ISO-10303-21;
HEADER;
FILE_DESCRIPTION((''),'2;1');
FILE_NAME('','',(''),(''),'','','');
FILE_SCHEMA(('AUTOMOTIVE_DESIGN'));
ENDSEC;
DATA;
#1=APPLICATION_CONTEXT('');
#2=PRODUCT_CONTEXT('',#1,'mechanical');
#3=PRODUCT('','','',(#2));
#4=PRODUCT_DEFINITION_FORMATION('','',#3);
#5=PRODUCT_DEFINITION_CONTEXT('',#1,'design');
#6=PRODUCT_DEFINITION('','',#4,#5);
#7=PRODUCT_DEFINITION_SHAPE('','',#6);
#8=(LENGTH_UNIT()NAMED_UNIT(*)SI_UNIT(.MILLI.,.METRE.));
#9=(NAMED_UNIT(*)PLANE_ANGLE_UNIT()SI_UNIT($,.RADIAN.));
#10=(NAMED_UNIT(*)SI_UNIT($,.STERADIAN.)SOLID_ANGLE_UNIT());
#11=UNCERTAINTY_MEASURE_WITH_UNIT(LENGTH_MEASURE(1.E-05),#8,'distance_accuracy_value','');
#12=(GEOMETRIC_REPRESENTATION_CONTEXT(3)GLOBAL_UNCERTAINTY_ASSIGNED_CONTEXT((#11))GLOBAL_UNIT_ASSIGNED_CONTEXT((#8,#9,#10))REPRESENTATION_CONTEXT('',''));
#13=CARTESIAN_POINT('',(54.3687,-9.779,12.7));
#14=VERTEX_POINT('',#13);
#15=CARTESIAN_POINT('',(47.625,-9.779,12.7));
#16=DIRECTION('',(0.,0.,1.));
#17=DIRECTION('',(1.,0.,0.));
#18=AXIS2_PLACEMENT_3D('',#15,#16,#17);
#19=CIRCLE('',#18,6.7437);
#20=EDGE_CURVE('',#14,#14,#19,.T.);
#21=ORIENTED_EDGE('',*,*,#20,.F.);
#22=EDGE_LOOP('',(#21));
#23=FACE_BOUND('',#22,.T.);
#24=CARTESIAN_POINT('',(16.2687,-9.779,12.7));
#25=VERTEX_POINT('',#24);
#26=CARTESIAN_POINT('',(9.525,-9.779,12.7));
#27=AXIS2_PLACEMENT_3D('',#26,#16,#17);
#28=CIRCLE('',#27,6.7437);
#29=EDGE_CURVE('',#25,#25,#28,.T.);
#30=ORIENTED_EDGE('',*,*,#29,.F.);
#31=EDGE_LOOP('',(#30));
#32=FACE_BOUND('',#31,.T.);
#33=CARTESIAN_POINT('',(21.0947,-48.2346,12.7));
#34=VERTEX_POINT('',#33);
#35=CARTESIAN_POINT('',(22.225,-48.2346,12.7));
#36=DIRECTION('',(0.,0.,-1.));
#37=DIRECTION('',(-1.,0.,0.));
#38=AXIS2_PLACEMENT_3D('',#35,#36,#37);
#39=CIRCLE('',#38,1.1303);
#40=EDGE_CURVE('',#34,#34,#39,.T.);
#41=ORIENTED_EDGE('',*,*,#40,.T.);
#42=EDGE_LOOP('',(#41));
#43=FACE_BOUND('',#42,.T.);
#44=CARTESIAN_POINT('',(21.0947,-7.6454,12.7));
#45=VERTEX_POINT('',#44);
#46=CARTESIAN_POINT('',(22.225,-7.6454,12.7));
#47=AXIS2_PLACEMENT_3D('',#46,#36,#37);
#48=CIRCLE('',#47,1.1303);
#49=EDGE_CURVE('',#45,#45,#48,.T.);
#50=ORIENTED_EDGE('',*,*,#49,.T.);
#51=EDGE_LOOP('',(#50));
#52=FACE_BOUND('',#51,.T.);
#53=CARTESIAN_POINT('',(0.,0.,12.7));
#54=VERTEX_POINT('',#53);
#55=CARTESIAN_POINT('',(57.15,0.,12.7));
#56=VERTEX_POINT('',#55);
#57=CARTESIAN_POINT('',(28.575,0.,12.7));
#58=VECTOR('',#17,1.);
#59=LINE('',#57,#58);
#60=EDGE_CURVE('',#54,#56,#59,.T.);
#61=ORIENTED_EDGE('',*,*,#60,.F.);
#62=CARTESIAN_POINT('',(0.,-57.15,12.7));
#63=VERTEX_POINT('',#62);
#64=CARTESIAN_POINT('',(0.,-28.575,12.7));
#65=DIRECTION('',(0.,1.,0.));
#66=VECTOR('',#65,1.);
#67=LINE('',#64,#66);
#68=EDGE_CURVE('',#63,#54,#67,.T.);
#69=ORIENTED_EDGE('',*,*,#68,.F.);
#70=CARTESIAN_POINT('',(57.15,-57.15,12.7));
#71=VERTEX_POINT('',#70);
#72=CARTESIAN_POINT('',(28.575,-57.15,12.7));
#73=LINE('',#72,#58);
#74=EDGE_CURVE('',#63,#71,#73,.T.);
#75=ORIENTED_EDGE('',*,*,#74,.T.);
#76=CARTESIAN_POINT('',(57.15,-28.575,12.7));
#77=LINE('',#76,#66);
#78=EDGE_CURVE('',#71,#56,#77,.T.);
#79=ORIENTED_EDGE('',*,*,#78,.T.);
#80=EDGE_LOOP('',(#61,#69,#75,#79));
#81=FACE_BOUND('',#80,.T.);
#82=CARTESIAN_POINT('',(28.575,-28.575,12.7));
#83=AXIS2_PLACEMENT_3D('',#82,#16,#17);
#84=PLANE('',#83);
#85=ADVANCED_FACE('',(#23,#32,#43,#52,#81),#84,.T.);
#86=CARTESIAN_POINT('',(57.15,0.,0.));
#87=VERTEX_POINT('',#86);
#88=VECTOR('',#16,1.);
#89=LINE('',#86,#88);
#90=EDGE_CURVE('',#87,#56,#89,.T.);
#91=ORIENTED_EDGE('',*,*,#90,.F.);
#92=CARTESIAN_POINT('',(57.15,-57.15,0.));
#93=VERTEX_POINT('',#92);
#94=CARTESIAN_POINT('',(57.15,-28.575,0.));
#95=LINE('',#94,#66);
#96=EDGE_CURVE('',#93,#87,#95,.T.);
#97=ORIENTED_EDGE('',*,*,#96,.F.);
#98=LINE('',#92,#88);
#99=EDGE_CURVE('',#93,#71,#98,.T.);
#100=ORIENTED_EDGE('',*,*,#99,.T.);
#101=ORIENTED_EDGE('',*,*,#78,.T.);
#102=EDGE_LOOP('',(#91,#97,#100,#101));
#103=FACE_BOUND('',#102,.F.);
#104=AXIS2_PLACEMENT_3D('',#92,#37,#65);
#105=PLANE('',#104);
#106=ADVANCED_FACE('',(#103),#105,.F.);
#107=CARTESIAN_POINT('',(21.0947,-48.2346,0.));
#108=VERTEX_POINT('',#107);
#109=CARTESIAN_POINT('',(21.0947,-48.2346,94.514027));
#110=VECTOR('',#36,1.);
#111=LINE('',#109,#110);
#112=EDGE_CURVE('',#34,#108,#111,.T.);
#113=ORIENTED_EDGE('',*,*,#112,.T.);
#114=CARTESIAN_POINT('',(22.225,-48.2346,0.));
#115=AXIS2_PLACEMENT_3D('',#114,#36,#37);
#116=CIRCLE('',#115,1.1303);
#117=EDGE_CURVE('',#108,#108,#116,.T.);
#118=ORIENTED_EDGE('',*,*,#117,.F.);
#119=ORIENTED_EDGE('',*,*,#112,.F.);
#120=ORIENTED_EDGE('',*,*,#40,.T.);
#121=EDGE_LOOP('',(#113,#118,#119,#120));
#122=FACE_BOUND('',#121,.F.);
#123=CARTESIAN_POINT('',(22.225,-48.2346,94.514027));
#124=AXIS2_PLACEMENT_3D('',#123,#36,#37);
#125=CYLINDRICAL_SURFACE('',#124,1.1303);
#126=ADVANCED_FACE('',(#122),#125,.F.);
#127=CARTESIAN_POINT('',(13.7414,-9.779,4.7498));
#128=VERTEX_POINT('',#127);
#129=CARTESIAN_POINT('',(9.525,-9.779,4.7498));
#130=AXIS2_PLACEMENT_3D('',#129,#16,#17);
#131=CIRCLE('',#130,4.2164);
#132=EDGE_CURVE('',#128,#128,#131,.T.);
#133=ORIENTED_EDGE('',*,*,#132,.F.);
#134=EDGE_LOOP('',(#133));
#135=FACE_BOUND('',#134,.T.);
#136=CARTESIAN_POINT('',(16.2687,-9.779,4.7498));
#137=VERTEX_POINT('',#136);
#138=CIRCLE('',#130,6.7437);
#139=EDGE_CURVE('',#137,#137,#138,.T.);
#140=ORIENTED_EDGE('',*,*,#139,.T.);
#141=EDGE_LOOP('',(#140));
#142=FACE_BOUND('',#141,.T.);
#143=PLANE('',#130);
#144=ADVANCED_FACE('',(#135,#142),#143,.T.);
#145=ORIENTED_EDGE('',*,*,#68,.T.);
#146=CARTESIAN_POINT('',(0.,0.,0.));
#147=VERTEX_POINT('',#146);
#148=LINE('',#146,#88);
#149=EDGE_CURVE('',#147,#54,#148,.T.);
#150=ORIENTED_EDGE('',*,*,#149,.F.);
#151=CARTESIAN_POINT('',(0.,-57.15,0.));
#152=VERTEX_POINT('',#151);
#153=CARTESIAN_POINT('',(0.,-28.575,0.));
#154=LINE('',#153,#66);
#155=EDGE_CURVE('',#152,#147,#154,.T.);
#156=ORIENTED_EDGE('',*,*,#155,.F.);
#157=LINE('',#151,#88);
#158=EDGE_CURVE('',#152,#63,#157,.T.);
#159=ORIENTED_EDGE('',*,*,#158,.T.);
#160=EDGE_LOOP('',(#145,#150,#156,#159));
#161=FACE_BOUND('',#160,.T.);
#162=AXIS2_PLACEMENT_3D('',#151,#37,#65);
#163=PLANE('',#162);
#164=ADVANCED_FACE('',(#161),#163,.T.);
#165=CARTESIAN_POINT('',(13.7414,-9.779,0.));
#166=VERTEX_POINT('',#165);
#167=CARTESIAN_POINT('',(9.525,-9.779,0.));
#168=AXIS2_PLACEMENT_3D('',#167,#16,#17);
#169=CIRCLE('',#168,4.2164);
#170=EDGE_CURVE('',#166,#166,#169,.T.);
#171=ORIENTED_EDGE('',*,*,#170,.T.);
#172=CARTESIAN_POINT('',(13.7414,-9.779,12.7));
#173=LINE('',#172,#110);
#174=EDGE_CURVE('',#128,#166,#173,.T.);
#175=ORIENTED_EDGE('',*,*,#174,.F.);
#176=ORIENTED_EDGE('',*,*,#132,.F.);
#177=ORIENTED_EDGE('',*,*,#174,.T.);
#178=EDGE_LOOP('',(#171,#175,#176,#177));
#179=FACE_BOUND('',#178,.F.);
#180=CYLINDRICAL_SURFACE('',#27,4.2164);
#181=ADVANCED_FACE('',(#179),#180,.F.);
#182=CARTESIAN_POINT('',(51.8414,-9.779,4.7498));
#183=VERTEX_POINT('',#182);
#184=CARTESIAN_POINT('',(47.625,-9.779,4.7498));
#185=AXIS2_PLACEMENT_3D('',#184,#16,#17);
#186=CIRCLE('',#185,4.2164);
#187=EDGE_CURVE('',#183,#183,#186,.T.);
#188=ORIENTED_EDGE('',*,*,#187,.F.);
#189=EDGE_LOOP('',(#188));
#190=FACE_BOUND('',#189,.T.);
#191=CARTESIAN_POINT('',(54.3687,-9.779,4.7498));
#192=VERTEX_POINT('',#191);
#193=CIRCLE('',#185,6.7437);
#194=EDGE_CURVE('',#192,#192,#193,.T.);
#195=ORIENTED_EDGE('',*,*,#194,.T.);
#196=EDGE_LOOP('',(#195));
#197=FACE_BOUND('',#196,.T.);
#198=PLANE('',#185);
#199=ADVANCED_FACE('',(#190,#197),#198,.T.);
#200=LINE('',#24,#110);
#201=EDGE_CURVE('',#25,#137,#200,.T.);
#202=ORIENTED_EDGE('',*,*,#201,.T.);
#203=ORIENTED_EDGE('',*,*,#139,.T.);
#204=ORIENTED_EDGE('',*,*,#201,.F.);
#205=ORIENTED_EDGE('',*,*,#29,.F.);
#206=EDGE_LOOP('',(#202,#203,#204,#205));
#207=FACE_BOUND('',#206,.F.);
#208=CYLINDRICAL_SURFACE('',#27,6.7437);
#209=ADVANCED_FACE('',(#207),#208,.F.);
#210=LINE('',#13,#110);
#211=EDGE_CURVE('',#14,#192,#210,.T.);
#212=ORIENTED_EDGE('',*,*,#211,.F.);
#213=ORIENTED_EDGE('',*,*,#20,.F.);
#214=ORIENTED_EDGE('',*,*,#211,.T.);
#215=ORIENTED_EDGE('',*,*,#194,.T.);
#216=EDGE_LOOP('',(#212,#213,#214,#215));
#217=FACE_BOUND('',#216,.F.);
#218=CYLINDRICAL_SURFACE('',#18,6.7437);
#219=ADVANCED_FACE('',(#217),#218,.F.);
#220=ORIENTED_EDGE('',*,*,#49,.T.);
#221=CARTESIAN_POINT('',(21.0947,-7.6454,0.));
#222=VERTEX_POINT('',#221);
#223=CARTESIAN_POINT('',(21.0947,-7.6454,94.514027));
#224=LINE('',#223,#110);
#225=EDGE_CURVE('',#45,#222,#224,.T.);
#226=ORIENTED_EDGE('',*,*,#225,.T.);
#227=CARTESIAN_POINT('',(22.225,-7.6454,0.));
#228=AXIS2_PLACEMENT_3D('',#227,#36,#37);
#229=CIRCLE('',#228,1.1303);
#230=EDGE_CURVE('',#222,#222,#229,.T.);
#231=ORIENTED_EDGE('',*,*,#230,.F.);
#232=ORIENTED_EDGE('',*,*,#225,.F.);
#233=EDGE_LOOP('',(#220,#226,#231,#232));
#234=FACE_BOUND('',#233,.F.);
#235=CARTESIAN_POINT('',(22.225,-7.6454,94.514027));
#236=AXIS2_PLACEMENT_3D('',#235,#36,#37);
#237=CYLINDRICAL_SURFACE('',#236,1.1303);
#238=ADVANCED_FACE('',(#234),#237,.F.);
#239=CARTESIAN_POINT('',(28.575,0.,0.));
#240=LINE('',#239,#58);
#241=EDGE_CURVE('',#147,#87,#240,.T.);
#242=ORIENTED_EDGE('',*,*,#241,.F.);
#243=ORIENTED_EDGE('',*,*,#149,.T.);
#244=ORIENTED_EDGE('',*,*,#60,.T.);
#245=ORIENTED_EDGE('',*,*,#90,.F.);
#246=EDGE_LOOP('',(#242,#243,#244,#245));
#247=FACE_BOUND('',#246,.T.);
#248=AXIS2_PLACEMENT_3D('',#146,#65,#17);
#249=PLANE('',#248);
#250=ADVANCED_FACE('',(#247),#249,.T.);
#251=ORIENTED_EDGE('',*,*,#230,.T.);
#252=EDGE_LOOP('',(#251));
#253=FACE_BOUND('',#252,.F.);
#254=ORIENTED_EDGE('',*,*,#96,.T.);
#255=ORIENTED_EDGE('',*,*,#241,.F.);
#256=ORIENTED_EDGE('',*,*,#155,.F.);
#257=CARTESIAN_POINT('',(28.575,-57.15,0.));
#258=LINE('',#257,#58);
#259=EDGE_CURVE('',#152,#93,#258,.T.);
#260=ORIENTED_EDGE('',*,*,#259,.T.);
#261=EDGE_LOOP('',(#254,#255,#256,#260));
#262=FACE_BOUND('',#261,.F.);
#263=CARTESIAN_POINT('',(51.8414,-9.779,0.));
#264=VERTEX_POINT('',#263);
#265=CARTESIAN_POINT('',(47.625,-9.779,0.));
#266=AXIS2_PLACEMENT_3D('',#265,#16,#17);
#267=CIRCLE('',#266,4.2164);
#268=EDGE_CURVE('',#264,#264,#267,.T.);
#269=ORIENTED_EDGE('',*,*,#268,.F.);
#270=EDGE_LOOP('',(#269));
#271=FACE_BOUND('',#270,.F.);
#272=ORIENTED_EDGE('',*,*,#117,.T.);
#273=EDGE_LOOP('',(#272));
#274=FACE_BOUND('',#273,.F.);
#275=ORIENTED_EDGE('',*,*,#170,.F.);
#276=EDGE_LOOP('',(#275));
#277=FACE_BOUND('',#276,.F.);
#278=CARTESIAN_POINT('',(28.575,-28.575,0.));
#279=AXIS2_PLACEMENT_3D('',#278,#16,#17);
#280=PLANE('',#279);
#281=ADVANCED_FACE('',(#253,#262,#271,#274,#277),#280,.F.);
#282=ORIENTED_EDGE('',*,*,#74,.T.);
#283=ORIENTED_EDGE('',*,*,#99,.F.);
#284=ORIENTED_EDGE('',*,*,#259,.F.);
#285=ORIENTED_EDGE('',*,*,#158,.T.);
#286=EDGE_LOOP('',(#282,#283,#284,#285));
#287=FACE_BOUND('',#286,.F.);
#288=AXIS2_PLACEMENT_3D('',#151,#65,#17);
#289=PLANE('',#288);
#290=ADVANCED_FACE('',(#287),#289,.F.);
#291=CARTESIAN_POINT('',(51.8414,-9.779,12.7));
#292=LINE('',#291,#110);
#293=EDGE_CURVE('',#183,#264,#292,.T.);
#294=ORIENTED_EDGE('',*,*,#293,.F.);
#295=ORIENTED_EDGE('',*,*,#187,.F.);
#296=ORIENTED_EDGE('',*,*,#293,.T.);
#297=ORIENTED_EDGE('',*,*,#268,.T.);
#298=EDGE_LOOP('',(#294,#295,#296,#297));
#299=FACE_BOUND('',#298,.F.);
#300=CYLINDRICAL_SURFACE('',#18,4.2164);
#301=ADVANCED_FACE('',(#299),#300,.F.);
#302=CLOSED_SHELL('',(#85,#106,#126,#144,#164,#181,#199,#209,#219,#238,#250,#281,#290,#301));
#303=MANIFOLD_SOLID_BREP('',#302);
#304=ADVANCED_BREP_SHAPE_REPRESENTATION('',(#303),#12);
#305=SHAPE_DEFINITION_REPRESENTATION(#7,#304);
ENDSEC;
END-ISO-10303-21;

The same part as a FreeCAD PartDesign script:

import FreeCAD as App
import Part
import Sketcher
Q = App.Units.Quantity

doc = App.newDocument("Part")
body = doc.addObject("PartDesign::Body", "Body")

# Sketch on XY plane
sketch1 = doc.addObject("Sketcher::SketchObject", "Sketch")
body.addObject(sketch1)
sketch1.AttachmentSupport = (doc.XY_Plane, [""])
sketch1.MapMode = "FlatFace"
sketch1.addGeometry(Part.LineSegment(App.Vector(0, 0, 0), App.Vector(0, -57, 0)), False)
sketch1.addGeometry(Part.LineSegment(App.Vector(0, -57, 0), App.Vector(57, -57, 0)), False)
sketch1.addGeometry(Part.LineSegment(App.Vector(57, -57, 0), App.Vector(57, 0, 0)), False)
sketch1.addGeometry(Part.LineSegment(App.Vector(57, 0, 0), App.Vector(0, 0, 0)), False)
sketch1.addConstraint(Sketcher.Constraint("Coincident", 0, 2, 1, 1))
sketch1.addConstraint(Sketcher.Constraint("Coincident", 1, 2, 2, 1))
sketch1.addConstraint(Sketcher.Constraint("Coincident", 2, 2, 3, 1))
sketch1.addConstraint(Sketcher.Constraint("Coincident", 3, 2, 0, 1))
sketch1.addConstraint(Sketcher.Constraint("Vertical", 0))
sketch1.addConstraint(Sketcher.Constraint("Horizontal", 1))
sketch1.addConstraint(Sketcher.Constraint("Vertical", 2))
sketch1.addConstraint(Sketcher.Constraint("Horizontal", 3))
sketch1.addConstraint(Sketcher.Constraint("Coincident", 3, 2, -1, 1))
sketch1.addConstraint(Sketcher.Constraint("Equal", 3, 0))
sketch1.addConstraint(Sketcher.Constraint("DistanceX", 1, 1, 1, 2, Q("2.25 in")))
pad1 = doc.addObject("PartDesign::Pad", "Pad")
body.addObject(pad1)
pad1.Profile = sketch1
pad1.Length = Q("0.5 in")

# Sketch on XY plane
sketch2 = doc.addObject("Sketcher::SketchObject", "Sketch001")
body.addObject(sketch2)
sketch2.AttachmentSupport = (doc.XY_Plane, [""])
sketch2.MapMode = "FlatFace"
sketch2.AttachmentOffset = App.Placement(App.Vector(0, 0, 0.5 * 25.4), App.Rotation())
sketch2.addGeometry(Part.Circle(App.Vector(9.5, -9.8, 0), App.Vector(0, 0, 1), 4.2), False)
sketch2.addGeometry(Part.Circle(App.Vector(47.6, -9.8, 0), App.Vector(0, 0, 1), 4.2), False)
sketch2.addConstraint(Sketcher.Constraint("Equal", 0, 1))
sketch2.addConstraint(Sketcher.Constraint("Horizontal", 0, 3, 1, 3))
sketch2.addConstraint(Sketcher.Constraint("Diameter", 0, Q("0.332 in")))
sketch2.addConstraint(Sketcher.Constraint("DistanceX", 0, 3, 1, 3, Q("1.5 in")))
sketch2.addConstraint(Sketcher.Constraint("DistanceX", -1, 1, 0, 3, Q("0.375 in")))
sketch2.addConstraint(Sketcher.Constraint("DistanceY", 0, 3, -1, 1, Q("0.385 in")))
pocket1 = doc.addObject("PartDesign::Pocket", "Pocket")
body.addObject(pocket1)
pocket1.Profile = sketch2
pocket1.Type = "ThroughAll"

# Sketch on XY plane
sketch3 = doc.addObject("Sketcher::SketchObject", "Sketch002")
body.addObject(sketch3)
sketch3.AttachmentSupport = (doc.XY_Plane, [""])
sketch3.MapMode = "FlatFace"
sketch3.AttachmentOffset = App.Placement(App.Vector(0, 0, 0.5 * 25.4), App.Rotation())
sketch3.addGeometry(Part.Circle(App.Vector(10, -10, 0), App.Vector(0, 0, 1), 7), False)
sketch3.addGeometry(Part.Circle(App.Vector(48, -10, 0), App.Vector(0, 0, 1), 7), False)
sketch3.addConstraint(Sketcher.Constraint("Equal", 0, 1))
sketch3.addConstraint(Sketcher.Constraint("Horizontal", 0, 3, 1, 3))
sketch3.addConstraint(Sketcher.Constraint("Diameter", 0, Q("0.531 in")))
sketch3.addConstraint(Sketcher.Constraint("DistanceX", 0, 3, 1, 3, Q("1.5 in")))
sketch3.addConstraint(Sketcher.Constraint("DistanceX", -1, 1, 0, 3, Q("0.375 in")))
sketch3.addConstraint(Sketcher.Constraint("DistanceY", 0, 3, -1, 1, Q("0.385 in")))
pocket2 = doc.addObject("PartDesign::Pocket", "Pocket001")
body.addObject(pocket2)
pocket2.Profile = sketch3
pocket2.Length = Q("0.313 in")

# Sketch on XY plane
sketch4 = doc.addObject("Sketcher::SketchObject", "Sketch003")
body.addObject(sketch4)
sketch4.AttachmentSupport = (doc.XY_Plane, [""])
sketch4.MapMode = "FlatFace"
sketch4.AttachmentOffset = App.Placement(App.Vector(0, 0, 0.5 * 25.4), App.Rotation())
sketch4.addGeometry(Part.Circle(App.Vector(22.2, -7.6, 0), App.Vector(0, 0, 1), 1.1), False)
sketch4.addGeometry(Part.Circle(App.Vector(22.2, -48.2, 0), App.Vector(0, 0, 1), 1.1), False)
sketch4.addConstraint(Sketcher.Constraint("Equal", 0, 1))
sketch4.addConstraint(Sketcher.Constraint("Vertical", 0, 3, 1, 3))
sketch4.addConstraint(Sketcher.Constraint("Diameter", 0, Q("0.089 in")))
sketch4.addConstraint(Sketcher.Constraint("DistanceX", -1, 1, 0, 3, Q("0.875 in")))
sketch4.addConstraint(Sketcher.Constraint("DistanceY", 0, 3, -1, 1, Q("0.301 in")))
sketch4.addConstraint(Sketcher.Constraint("DistanceY", 1, 3, -1, 1, Q("1.899 in")))
doc.recompute()
hole = doc.addObject("PartDesign::Hole", "Hole")
body.addObject(hole)
hole.Profile = sketch4
hole.ThreadType = "None"
hole.Diameter = Q("0.089 in")
hole.DepthType = "ThroughAll"

doc.recompute()
